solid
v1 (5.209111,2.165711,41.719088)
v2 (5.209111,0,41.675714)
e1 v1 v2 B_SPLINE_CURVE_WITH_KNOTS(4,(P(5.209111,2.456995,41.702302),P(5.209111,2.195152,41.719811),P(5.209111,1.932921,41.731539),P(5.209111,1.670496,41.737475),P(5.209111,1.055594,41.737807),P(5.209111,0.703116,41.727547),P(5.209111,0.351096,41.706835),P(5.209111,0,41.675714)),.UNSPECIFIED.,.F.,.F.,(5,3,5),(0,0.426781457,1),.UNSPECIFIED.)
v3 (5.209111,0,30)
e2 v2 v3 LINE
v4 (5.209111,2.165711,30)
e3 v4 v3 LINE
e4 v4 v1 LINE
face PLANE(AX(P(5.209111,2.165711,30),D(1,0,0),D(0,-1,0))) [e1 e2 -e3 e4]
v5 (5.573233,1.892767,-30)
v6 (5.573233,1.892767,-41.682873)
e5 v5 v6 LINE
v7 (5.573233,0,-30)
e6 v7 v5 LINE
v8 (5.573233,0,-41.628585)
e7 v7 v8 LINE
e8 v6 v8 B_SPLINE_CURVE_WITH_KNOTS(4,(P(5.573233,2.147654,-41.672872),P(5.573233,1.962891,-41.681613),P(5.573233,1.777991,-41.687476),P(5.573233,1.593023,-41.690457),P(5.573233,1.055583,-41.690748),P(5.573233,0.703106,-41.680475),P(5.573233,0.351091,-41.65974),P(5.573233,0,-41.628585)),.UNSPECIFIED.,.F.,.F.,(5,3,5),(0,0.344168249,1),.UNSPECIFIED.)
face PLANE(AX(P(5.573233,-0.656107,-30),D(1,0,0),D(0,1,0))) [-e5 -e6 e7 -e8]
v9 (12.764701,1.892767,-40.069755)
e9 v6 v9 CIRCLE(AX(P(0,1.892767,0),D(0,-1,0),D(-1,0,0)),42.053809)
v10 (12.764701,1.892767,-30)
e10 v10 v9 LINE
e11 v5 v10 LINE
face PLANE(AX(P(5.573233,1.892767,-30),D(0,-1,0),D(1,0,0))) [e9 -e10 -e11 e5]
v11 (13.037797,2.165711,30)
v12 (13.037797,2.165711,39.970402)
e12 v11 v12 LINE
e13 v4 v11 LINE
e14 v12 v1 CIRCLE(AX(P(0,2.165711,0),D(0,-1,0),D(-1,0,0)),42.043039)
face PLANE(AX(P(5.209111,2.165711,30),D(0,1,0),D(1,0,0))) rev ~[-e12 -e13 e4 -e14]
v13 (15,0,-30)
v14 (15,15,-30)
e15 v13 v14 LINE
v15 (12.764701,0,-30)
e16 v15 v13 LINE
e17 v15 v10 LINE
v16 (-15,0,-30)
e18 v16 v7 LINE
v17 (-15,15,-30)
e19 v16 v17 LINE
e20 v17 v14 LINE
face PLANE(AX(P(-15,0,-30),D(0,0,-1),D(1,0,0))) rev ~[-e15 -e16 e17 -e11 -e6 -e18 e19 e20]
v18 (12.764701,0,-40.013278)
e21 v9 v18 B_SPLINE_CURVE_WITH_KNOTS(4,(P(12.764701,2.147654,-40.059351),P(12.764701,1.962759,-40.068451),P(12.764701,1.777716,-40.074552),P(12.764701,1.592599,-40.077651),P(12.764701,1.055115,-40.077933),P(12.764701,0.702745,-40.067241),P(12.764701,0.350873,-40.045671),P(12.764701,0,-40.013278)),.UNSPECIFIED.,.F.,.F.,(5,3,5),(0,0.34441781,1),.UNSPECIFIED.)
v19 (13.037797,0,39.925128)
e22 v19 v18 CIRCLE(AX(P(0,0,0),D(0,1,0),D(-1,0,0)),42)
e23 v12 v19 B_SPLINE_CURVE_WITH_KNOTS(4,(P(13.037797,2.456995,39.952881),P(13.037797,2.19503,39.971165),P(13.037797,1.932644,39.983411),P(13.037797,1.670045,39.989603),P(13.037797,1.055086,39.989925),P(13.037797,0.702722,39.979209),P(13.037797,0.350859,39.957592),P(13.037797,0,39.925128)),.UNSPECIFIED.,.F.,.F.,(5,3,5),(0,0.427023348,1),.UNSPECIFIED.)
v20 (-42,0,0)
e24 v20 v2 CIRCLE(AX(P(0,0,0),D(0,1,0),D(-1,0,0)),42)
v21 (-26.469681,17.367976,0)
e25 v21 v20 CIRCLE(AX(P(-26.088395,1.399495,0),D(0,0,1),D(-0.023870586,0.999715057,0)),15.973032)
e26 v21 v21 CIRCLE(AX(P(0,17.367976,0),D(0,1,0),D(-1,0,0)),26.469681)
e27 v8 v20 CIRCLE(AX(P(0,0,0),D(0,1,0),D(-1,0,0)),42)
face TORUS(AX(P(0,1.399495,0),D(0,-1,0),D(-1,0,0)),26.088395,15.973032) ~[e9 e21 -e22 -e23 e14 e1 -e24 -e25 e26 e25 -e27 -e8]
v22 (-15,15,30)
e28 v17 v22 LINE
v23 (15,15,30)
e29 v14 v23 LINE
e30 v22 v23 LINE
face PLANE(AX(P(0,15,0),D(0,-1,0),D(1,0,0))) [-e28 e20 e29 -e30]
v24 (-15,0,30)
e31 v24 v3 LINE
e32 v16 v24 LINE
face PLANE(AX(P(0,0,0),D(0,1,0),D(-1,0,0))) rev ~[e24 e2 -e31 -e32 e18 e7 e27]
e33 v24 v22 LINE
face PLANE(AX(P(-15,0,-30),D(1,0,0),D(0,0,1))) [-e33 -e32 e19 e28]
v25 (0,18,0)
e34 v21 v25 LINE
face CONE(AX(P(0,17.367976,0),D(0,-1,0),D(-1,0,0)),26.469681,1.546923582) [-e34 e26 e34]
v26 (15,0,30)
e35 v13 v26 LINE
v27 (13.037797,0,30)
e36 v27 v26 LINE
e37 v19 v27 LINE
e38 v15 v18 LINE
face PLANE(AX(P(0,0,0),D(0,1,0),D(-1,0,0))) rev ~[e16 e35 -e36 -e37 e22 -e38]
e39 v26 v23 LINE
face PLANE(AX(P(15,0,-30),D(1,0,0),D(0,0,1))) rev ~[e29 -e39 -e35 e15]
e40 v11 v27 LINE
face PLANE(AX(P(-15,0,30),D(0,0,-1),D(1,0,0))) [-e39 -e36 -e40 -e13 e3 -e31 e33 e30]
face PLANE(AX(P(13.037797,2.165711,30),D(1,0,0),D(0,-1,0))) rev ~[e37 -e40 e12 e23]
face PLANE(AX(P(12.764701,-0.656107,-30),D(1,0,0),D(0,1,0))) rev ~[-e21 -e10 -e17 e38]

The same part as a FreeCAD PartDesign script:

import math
import FreeCAD as App
import Part
import Sketcher
from FreeCAD import Vector
Q = App.Units.Quantity

doc = App.newDocument("Part")
params = doc.addObject("Spreadsheet::Sheet", "Params")
for row, (alias, value) in enumerate([
    ("sketch1_width", "42 mm"),
    ("sketch1_height", "18 mm"),
    ("revolution_angle", "360 deg"),
    ("sketch2_width", "30 mm"),
    ("sketch2_height", "60 mm"),
    ("pocket1_length", "15 mm"),
], start=1):
    params.set(f"A{row}", alias)
    params.set(f"B{row}", "=" + value)
    params.setAlias(f"B{row}", alias)

body = doc.addObject("PartDesign::Body", "Body")

# Sketch on XY plane
sketch1 = body.newObject("Sketcher::SketchObject", "Sketch")
sketch1.AttachmentSupport = (doc.getObject("XY_Plane"), [""])
sketch1.MapMode = "FlatFace"
sketch1.addGeometry([
    Part.ArcOfCircle(Part.Circle(Vector(-26.088395, 1.399495, 0), Vector(0, 0, 1), 15.973032), math.radians(91.367814), math.radians(185.02648)),
    Part.LineSegment(Vector(-42, 0, 0), Vector(0, 0, 0)),
    Part.LineSegment(Vector(0, 0, 0), Vector(0, 18, 0)),
    Part.LineSegment(Vector(0, 18, 0), Vector(-26.469681, 17.367976, 0)),
], False)
sketch1.addConstraint([
    Sketcher.Constraint("Coincident", 0, 2, 1, 1),
    Sketcher.Constraint("Coincident", 1, 2, 2, 1),
    Sketcher.Constraint("Coincident", 2, 2, 3, 1),
    Sketcher.Constraint("Tangent", 3, 2, 0, 1),
    Sketcher.Constraint("Horizontal", 1),
    Sketcher.Constraint("Vertical", 2),
    Sketcher.Constraint("Coincident", 1, 2, -1, 1),
    Sketcher.Constraint("DistanceX", 1, 1, 1, 2, Q("42 mm")),
    Sketcher.Constraint("DistanceY", 2, 1, 2, 2, Q("18 mm")),
    Sketcher.Constraint("Radius", 0, Q("15.973032 mm")),
    Sketcher.Constraint("DistanceX", 3, 2, -1, 1, Q("26.469681 mm")),
])
sketch1.setExpression("Constraints[7]", "Params.sketch1_width")
sketch1.setExpression("Constraints[8]", "Params.sketch1_height")
revolution = body.newObject("PartDesign::Revolution", "Revolution")
revolution.Profile = sketch1
revolution.ReferenceAxis = (sketch1, ["V_Axis"])
revolution.setExpression("Angle", "Params.revolution_angle")

# Sketch on XZ plane
sketch2 = body.newObject("Sketcher::SketchObject", "Sketch001")
sketch2.AttachmentSupport = (doc.getObject("XZ_Plane"), [""])
sketch2.MapMode = "FlatFace"
sketch2.addGeometry([
    Part.LineSegment(Vector(-15, 30, 0), Vector(-15, -30, 0)),
    Part.LineSegment(Vector(-15, -30, 0), Vector(15, -30, 0)),
    Part.LineSegment(Vector(15, -30, 0), Vector(15, 30, 0)),
    Part.LineSegment(Vector(15, 30, 0), Vector(-15, 30, 0)),
], False)
sketch2.addConstraint([
    Sketcher.Constraint("Coincident", 0, 2, 1, 1),
    Sketcher.Constraint("Coincident", 1, 2, 2, 1),
    Sketcher.Constraint("Coincident", 2, 2, 3, 1),
    Sketcher.Constraint("Coincident", 3, 2, 0, 1),
    Sketcher.Constraint("Vertical", 0),
    Sketcher.Constraint("Horizontal", 1),
    Sketcher.Constraint("Vertical", 2),
    Sketcher.Constraint("Horizontal", 3),
    Sketcher.Constraint("Symmetric", 0, 2, 2, 2, -1, 1),
    Sketcher.Constraint("DistanceX", 1, 1, 1, 2, Q("30 mm")),
    Sketcher.Constraint("DistanceY", 0, 2, 0, 1, Q("60 mm")),
])
sketch2.setExpression("Constraints[9]", "Params.sketch2_width")
sketch2.setExpression("Constraints[10]", "Params.sketch2_height")
pocket1 = body.newObject("PartDesign::Pocket", "Pocket")
pocket1.Profile = sketch2
pocket1.setExpression("Length", "Params.pocket1_length")

# Sketch on XY plane
sketch3 = body.newObject("Sketcher::SketchObject", "Sketch002")
sketch3.AttachmentSupport = (doc.getObject("XY_Plane"), [""])
sketch3.MapMode = "FlatFace"
sketch3.AttachmentOffset = App.Placement(Vector(0, 0, 30), App.Rotation())
sketch3.addGeometry([
    Part.LineSegment(Vector(5.209111, -0.747133, 0), Vector(5.209111, 2.165711, 0)),
    Part.LineSegment(Vector(5.209111, 2.165711, 0), Vector(13.037797, 2.165711, 0)),
    Part.LineSegment(Vector(13.037797, 2.165711, 0), Vector(13.037797, -0.747133, 0)),
    Part.LineSegment(Vector(13.037797, -0.747133, 0), Vector(5.209111, -0.747133, 0)),
], False)
sketch3.addConstraint([
    Sketcher.Constraint("Coincident", 0, 2, 1, 1),
    Sketcher.Constraint("Coincident", 1, 2, 2, 1),
    Sketcher.Constraint("Coincident", 2, 2, 3, 1),
    Sketcher.Constraint("Coincident", 3, 2, 0, 1),
    Sketcher.Constraint("Vertical", 0),
    Sketcher.Constraint("Horizontal", 1),
    Sketcher.Constraint("Vertical", 2),
    Sketcher.Constraint("Horizontal", 3),
    Sketcher.Constraint("DistanceX", 1, 1, 1, 2, Q("7.828685 mm")),
    Sketcher.Constraint("DistanceY", 0, 1, 0, 2, Q("2.912844 mm")),
    Sketcher.Constraint("DistanceX", -1, 1, 0, 2, Q("5.209111 mm")),
    Sketcher.Constraint("DistanceY", -1, 1, 0, 2, Q("2.165711 mm")),
])
pocket2 = body.newObject("PartDesign::Pocket", "Pocket001")
pocket2.Profile = sketch3
pocket2.Type = "ThroughAll"
pocket2.Reversed = True

# Sketch on XY plane
sketch4 = body.newObject("Sketcher::SketchObject", "Sketch003")
sketch4.AttachmentSupport = (doc.getObject("XY_Plane"), [""])
sketch4.MapMode = "FlatFace"
sketch4.AttachmentOffset = App.Placement(Vector(0, 0, -30), App.Rotation())
sketch4.addGeometry([
    Part.LineSegment(Vector(5.573233, 1.892767, 0), Vector(5.573233, -0.656107, 0)),
    Part.LineSegment(Vector(5.573233, -0.656107, 0), Vector(12.764701, -0.656107, 0)),
    Part.LineSegment(Vector(12.764701, -0.656107, 0), Vector(12.764701, 1.892767, 0)),
    Part.LineSegment(Vector(12.764701, 1.892767, 0), Vector(5.573233, 1.892767, 0)),
], False)
sketch4.addConstraint([
    Sketcher.Constraint("Coincident", 0, 2, 1, 1),
    Sketcher.Constraint("Coincident", 1, 2, 2, 1),
    Sketcher.Constraint("Coincident", 2, 2, 3, 1),
    Sketcher.Constraint("Coincident", 3, 2, 0, 1),
    Sketcher.Constraint("Vertical", 0),
    Sketcher.Constraint("Horizontal", 1),
    Sketcher.Constraint("Vertical", 2),
    Sketcher.Constraint("Horizontal", 3),
    Sketcher.Constraint("DistanceX", -1, 1, 1, 2, Q("12.764701 mm")),
    Sketcher.Constraint("DistanceX", 1, 1, 1, 2, Q("7.191467 mm")),
    Sketcher.Constraint("DistanceY", 0, 2, 0, 1, Q("2.548873 mm")),
    Sketcher.Constraint("DistanceY", 0, 2, -1, 1, Q("0.656107 mm")),
])
pocket3 = body.newObject("PartDesign::Pocket", "Pocket002")
pocket3.Profile = sketch4
pocket3.Type = "ThroughAll"

doc.recompute()
